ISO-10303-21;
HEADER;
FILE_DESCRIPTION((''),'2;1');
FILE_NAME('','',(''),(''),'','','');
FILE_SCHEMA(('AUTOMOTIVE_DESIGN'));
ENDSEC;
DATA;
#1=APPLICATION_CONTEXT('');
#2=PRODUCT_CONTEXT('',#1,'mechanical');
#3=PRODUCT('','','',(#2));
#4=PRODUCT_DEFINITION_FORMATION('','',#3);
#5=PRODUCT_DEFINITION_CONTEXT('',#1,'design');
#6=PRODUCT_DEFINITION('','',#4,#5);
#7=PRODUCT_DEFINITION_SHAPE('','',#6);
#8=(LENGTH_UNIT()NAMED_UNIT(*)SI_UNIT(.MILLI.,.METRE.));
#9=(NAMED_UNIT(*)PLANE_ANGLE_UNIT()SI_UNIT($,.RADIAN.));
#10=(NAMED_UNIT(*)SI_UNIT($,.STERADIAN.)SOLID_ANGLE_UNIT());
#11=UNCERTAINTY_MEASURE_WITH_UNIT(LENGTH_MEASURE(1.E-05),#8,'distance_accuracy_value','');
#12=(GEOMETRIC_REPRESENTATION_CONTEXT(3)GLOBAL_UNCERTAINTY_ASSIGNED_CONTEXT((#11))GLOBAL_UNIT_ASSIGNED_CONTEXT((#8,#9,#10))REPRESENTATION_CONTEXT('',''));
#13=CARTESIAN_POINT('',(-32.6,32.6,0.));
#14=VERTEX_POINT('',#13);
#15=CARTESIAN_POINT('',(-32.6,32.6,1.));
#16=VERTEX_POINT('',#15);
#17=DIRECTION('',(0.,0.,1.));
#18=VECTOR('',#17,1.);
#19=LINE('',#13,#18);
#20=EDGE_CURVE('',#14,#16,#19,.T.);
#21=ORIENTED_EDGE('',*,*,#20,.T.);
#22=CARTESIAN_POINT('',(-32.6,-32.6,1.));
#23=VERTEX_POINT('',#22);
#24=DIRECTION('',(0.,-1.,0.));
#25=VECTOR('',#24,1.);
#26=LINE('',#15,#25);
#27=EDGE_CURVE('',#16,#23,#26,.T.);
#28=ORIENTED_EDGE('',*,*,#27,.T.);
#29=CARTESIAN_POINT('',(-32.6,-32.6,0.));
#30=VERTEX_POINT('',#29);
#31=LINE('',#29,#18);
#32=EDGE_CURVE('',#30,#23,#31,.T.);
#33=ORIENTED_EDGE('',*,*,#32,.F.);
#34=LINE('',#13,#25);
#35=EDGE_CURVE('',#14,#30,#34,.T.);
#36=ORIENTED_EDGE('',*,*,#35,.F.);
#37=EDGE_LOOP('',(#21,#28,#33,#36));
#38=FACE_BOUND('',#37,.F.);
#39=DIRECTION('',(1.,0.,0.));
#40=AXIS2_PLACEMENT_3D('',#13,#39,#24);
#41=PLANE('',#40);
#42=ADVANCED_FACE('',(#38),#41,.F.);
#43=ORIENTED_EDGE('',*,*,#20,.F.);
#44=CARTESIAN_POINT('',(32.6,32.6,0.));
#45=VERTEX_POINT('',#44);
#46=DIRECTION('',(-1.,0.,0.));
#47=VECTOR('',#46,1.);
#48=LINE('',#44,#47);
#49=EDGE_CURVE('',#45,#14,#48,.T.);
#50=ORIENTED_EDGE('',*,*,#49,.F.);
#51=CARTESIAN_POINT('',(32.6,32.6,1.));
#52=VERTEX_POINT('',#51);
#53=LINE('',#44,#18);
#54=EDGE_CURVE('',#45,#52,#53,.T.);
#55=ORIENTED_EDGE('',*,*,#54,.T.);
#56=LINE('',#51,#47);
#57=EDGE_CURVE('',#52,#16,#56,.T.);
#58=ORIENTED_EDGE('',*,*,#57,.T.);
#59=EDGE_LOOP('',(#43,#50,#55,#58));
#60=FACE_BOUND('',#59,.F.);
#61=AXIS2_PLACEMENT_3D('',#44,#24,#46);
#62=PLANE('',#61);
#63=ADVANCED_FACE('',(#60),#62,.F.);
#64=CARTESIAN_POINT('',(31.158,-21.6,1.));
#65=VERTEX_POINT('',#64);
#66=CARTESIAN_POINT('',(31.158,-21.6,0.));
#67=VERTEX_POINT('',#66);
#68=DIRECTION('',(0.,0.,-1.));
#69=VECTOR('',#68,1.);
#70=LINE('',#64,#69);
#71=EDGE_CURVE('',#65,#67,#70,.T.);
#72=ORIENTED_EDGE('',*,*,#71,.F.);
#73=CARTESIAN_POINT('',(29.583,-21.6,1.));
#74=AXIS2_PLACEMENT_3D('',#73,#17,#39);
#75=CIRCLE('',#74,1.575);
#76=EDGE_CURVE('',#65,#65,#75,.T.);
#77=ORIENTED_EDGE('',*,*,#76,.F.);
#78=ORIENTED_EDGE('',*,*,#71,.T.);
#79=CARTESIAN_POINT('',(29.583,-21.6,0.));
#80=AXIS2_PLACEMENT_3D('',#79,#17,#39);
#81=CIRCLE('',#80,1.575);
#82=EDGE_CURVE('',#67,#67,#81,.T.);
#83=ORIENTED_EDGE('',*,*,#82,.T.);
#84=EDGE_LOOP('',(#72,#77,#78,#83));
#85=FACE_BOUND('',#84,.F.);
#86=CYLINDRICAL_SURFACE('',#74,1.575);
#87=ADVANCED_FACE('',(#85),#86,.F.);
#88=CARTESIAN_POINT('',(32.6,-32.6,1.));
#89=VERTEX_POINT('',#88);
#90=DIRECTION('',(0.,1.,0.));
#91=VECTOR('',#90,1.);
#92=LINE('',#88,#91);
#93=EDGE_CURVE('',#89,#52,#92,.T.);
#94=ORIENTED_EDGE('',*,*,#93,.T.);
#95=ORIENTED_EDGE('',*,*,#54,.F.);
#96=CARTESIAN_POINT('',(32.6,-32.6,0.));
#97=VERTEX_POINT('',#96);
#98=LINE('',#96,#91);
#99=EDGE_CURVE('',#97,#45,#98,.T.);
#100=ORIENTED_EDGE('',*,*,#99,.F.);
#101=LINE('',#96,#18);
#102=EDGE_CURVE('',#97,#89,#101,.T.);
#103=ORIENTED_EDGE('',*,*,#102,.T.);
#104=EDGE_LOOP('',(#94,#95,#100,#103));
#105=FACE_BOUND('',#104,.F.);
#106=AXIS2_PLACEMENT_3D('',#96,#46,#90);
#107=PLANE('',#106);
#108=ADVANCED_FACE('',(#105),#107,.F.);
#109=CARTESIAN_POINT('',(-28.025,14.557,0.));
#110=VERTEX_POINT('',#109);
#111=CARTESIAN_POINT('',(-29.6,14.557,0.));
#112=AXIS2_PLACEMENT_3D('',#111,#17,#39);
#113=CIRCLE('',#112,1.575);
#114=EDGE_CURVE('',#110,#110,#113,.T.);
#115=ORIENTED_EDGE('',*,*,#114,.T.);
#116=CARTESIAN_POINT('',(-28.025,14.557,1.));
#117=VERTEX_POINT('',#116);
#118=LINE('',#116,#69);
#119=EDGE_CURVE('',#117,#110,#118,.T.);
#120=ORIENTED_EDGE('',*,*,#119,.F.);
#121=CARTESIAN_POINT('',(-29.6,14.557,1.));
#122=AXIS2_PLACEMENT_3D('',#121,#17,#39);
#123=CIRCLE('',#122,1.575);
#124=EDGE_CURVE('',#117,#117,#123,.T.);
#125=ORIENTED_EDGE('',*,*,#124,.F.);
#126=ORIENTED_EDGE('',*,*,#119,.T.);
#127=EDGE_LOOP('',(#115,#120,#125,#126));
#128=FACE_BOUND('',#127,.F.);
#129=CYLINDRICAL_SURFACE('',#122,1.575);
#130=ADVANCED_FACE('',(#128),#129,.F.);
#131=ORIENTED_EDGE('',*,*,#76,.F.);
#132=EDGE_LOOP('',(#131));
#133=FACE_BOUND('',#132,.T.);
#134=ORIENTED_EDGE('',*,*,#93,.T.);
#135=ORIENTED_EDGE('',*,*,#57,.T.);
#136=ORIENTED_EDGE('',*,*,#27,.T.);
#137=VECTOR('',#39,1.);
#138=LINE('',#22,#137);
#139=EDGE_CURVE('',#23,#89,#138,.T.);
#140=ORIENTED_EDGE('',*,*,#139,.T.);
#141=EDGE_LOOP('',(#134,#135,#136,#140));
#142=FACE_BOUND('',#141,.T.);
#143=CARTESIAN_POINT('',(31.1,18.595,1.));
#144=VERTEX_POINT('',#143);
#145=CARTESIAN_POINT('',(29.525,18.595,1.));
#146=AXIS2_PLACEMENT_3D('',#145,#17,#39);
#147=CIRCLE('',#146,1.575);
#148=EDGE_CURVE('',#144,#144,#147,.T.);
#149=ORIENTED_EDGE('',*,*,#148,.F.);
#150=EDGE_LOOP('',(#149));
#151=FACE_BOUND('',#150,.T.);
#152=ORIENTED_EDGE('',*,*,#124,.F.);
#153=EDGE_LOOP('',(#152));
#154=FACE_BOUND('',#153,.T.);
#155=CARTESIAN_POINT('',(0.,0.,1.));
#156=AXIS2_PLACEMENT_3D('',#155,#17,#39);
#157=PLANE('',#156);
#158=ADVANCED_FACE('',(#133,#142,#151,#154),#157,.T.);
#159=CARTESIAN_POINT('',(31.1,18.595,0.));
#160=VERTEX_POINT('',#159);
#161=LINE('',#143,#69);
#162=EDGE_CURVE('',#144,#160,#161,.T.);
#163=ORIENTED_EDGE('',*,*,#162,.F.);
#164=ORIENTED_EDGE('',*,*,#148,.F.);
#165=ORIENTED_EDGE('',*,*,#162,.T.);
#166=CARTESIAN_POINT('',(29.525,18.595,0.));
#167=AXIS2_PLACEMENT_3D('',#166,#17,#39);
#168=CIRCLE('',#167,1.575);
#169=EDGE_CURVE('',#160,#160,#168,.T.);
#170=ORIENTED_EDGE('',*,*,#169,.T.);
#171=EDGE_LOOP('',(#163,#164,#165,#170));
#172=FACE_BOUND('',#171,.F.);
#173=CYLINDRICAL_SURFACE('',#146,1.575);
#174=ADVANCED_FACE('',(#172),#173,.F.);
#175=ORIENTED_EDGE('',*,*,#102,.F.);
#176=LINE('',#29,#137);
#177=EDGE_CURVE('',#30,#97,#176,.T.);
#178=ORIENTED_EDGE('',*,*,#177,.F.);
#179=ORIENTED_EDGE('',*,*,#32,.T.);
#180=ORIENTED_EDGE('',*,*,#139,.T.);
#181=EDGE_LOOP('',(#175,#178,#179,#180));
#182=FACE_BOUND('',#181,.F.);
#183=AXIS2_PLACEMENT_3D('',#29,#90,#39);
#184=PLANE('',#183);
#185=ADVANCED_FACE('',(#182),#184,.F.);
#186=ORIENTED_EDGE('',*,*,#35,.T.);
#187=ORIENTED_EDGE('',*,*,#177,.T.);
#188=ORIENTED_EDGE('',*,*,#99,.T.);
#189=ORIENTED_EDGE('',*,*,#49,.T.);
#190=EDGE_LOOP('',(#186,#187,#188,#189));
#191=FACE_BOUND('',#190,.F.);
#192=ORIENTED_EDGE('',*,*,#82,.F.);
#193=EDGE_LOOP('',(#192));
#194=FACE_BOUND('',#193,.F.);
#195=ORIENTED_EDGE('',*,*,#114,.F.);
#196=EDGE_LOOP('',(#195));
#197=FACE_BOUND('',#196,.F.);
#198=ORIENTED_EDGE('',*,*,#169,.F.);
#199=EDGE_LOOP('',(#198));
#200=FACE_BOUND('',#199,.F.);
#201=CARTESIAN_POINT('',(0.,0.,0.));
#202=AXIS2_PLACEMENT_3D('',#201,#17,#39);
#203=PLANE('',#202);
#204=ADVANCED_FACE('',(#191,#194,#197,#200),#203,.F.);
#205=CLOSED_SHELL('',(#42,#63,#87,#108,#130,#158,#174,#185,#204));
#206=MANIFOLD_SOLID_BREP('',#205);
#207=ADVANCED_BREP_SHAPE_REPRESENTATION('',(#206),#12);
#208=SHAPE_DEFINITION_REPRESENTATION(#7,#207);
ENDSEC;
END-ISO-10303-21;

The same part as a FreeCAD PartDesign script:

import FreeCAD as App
import Part
import Sketcher
from FreeCAD import Vector
Q = App.Units.Quantity


def add_polygon(sketch, points):
    """Adds a closed chain of lines whose ends are joined by coincident constraints."""
    first, n = sketch.GeometryCount, len(points)
    for a, b in zip(points, points[1:] + points[:1]):
        sketch.addGeometry(Part.LineSegment(App.Vector(*a, 0), App.Vector(*b, 0)), False)
    for i in range(n):
        sketch.addConstraint(Sketcher.Constraint("Coincident", first + i, 2, first + (i + 1) % n, 1))

doc = App.newDocument("Part")
params = doc.addObject("Spreadsheet::Sheet", "Params")
for row, (alias, value) in enumerate([
    ("sketch1_width", "65.2 mm"),
    ("pad1_length", "1 mm"),
    ("sketch2_diameter", "3.15 mm"),
    ("pocket1_length", "1 mm"),
], start=1):
    params.set(f"A{row}", alias)
    params.set(f"B{row}", "=" + value)
    params.setAlias(f"B{row}", alias)

body = doc.addObject("PartDesign::Body", "Body")

sketch1 = doc.addObject("Sketcher::SketchObject", "Sketch")
body.addObject(sketch1)
sketch1.AttachmentSupport = (doc.XY_Plane, [""])
sketch1.MapMode = "FlatFace"
add_polygon(sketch1, [(-33, 33), (-33, -33), (33, -33), (33, 33)])
sketch1.addConstraint([
    Sketcher.Constraint("Vertical", 0),
    Sketcher.Constraint("Horizontal", 1),
    Sketcher.Constraint("Vertical", 2),
    Sketcher.Constraint("Horizontal", 3),
    Sketcher.Constraint("Symmetric", 0, 2, 2, 2, -1, 1),
    Sketcher.Constraint("Equal", 3, 0),
    Sketcher.Constraint("DistanceX", 1, 1, 1, 2, Q("65.2 mm")),
])
sketch1.setExpression("Constraints[10]", "Params.sketch1_width")
pad1 = doc.addObject("PartDesign::Pad", "Pad")
body.addObject(pad1)
pad1.Profile = sketch1
pad1.setExpression("Length", "Params.pad1_length")

sketch2 = doc.addObject("Sketcher::SketchObject", "Sketch001")
body.addObject(sketch2)
sketch2.AttachmentSupport = (doc.XY_Plane, [""])
sketch2.MapMode = "FlatFace"
sketch2.AttachmentOffset = App.Placement(Vector(0, 0, 1), App.Rotation())
sketch2.addGeometry([
    Part.Circle(Vector(-29.6, 14.6, 0), Vector(0, 0, 1), 1.6),
    Part.Circle(Vector(29.5, 18.6, 0), Vector(0, 0, 1), 1.6),
    Part.Circle(Vector(29.6, -21.6, 0), Vector(0, 0, 1), 1.6),
], False)
sketch2.addConstraint([
    Sketcher.Constraint("Equal", 0, 1),
    Sketcher.Constraint("Equal", 1, 2),
    Sketcher.Constraint("Diameter", 0, Q("3.15 mm")),
    Sketcher.Constraint("DistanceX", 0, 3, -1, 1, Q("29.6 mm")),
    Sketcher.Constraint("DistanceY", 2, 3, -1, 1, Q("21.6 mm")),
    Sketcher.Constraint("DistanceY", -1, 1, 0, 3, Q("14.557 mm")),
    Sketcher.Constraint("DistanceX", -1, 1, 1, 3, Q("29.525 mm")),
    Sketcher.Constraint("DistanceY", -1, 1, 1, 3, Q("18.595 mm")),
    Sketcher.Constraint("DistanceX", -1, 1, 2, 3, Q("29.583 mm")),
])
sketch2.setExpression("Constraints[2]", "Params.sketch2_diameter")
pocket1 = doc.addObject("PartDesign::Pocket", "Pocket")
body.addObject(pocket1)
pocket1.Profile = sketch2
pocket1.setExpression("Length", "Params.pocket1_length")

doc.recompute()
